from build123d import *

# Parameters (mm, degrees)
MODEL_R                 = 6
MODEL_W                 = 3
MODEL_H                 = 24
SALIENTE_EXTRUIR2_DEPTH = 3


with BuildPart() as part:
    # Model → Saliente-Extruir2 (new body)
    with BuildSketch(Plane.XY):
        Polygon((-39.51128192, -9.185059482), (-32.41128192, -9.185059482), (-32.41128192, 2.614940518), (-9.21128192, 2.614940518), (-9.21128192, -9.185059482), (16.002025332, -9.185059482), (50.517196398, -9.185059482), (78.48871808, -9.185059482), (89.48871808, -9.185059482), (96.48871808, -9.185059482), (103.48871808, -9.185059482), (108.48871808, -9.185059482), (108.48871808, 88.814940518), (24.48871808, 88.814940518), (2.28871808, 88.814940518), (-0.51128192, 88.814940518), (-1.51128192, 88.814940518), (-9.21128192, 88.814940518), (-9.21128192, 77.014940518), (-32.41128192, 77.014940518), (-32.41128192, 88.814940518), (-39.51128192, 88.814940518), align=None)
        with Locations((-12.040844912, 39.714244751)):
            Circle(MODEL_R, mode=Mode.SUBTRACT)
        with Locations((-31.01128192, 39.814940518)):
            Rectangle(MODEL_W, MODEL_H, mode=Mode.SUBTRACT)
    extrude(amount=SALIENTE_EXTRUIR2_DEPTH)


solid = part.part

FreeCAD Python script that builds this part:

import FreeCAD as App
import Part
import Sketcher

V = App.Vector
Q = App.Units.Quantity


def add_polygon(sketch, points):
    """Adds a closed chain of lines whose ends are joined by coincident constraints."""
    first, n = sketch.GeometryCount, len(points)
    for a, b in zip(points, points[1:] + points[:1]):
        sketch.addGeometry(Part.LineSegment(App.Vector(*a, 0), App.Vector(*b, 0)), False)
    for i in range(n):
        sketch.addConstraint(Sketcher.Constraint("Coincident", first + i, 2, first + (i + 1) % n, 1))

doc = App.newDocument("Part")
body = doc.addObject("PartDesign::Body", "Body")

sketch1 = body.newObject("Sketcher::SketchObject", "Sketch")
sketch1.AttachmentSupport = (doc.getObject("XY_Plane"), [""])
sketch1.MapMode = "FlatFace"
add_polygon(sketch1, [(-39.5, -9.2), (-32.4, -9.2), (-32.4, 2.6), (-9.2, 2.6), (-9.2, -9.2), (108.5, -9.2), (108.5, 88.8), (-9.2, 88.8), (-9.2, 77), (-32.4, 77), (-32.4, 88.8), (-39.5, 88.8)])
sketch1.addGeometry(Part.Circle(V(-12, 39.7, 0), V(0, 0, 1), 6), False)
add_polygon(sketch1, [(-29.5, 27.8), (-32.5, 27.8), (-32.5, 51.8), (-29.5, 51.8)])
sketch1.addConstraint([
    Sketcher.Constraint("Horizontal", 0),
    Sketcher.Constraint("Vertical", 1),
    Sketcher.Constraint("Horizontal", 2),
    Sketcher.Constraint("Vertical", 3),
    Sketcher.Constraint("Horizontal", 4),
    Sketcher.Constraint("Vertical", 5),
    Sketcher.Constraint("Horizontal", 6),
    Sketcher.Constraint("Vertical", 7),
    Sketcher.Constraint("Horizontal", 8),
    Sketcher.Constraint("Vertical", 9),
    Sketcher.Constraint("Horizontal", 10),
    Sketcher.Constraint("Vertical", 11),
    Sketcher.Constraint("Horizontal", 13),
    Sketcher.Constraint("Vertical", 14),
    Sketcher.Constraint("Horizontal", 15),
    Sketcher.Constraint("Vertical", 16),
    Sketcher.Constraint("Horizontal", 0, 2, 3, 2),
    Sketcher.Constraint("Horizontal", 6, 2, 9, 2),
    Sketcher.Constraint("Vertical", 3, 2, 6, 2),
    Sketcher.Constraint("Vertical", 1, 2, 8, 2),
    Sketcher.Constraint("Equal", 3, 7),
    Sketcher.Constraint("Diameter", 12, Q("12 mm")),
    Sketcher.Constraint("DistanceX", 13, 2, 13, 1, Q("3 mm")),
    Sketcher.Constraint("DistanceY", 5, 1, 5, 2, Q("98 mm")),
    Sketcher.Constraint("DistanceY", 14, 1, 14, 2, Q("24 mm")),
    Sketcher.Constraint("DistanceX", 0, 1, 0, 2, Q("7.1 mm")),
    Sketcher.Constraint("DistanceX", 2, 1, 2, 2, Q("23.2 mm")),
    Sketcher.Constraint("DistanceX", 4, 1, 4, 2, Q("117.7 mm")),
    Sketcher.Constraint("DistanceY", 1, 1, 1, 2, Q("11.8 mm")),
    Sketcher.Constraint("DistanceY", 0, 2, 13, 2, Q("37 mm")),
    Sketcher.Constraint("DistanceX", 11, 2, 13, 2, Q("7 mm")),
    Sketcher.Constraint("DistanceX", 0, 2, -1, 1, Q("32.411282 mm")),
    Sketcher.Constraint("DistanceY", 0, 2, -1, 1, Q("9.185059 mm")),
    Sketcher.Constraint("DistanceX", 12, 3, -1, 1, Q("12.040845 mm")),
    Sketcher.Constraint("DistanceY", -1, 1, 12, 3, Q("39.714245 mm")),
])
pad1 = body.newObject("PartDesign::Pad", "Pad")
pad1.Profile = sketch1
pad1.Length = 3

doc.recompute()
